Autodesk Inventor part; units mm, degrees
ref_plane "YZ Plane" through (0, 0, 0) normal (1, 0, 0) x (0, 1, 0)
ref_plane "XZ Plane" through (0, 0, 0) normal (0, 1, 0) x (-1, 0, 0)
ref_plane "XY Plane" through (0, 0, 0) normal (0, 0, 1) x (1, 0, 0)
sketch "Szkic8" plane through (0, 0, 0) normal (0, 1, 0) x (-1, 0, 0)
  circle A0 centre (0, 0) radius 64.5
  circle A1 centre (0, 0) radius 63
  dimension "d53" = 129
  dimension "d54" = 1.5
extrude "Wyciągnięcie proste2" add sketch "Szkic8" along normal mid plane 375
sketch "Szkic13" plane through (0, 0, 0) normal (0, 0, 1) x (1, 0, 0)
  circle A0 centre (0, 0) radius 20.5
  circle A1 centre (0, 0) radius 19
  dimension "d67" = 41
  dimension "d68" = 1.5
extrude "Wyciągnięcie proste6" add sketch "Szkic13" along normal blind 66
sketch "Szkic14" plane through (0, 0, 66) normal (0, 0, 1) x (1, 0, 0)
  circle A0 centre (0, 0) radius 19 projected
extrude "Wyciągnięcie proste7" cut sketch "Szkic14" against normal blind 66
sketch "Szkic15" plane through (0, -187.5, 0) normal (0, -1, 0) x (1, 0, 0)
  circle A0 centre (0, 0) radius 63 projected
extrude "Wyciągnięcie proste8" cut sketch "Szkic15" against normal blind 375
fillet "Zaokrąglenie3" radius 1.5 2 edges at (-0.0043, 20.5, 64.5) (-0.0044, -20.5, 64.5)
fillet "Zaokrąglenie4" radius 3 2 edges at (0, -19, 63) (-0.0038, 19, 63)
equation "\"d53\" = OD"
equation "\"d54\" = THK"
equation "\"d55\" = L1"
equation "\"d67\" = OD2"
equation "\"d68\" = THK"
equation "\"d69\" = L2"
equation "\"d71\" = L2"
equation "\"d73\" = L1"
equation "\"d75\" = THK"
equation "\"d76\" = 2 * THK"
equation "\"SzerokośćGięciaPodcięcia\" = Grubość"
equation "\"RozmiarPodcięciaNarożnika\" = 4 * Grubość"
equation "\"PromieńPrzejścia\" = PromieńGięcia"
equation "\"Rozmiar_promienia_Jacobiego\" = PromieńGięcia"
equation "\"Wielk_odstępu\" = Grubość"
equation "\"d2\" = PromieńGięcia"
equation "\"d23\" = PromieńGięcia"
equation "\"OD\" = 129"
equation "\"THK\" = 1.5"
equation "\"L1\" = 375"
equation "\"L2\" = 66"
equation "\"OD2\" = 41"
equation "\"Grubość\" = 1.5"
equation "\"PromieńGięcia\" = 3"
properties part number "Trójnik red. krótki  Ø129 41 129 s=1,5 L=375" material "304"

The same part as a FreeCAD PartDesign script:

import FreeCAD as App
import Part
import Sketcher


def edges_at(feature, points):
    """Names of the edges that pass closest to the given points."""
    edges = feature.Shape.Edges
    near = lambda p: min(range(len(edges)), key=lambda i: edges[i].distToShape(Part.Vertex(*p))[0])
    return sorted({f"Edge{near(p) + 1}" for p in points})

doc = App.newDocument("Part")
body = doc.addObject("PartDesign::Body", "Body")

sketch1 = body.newObject("Sketcher::SketchObject", "Sketch")
sketch1.AttachmentSupport = (doc.getObject("XZ_Plane"), [""])
sketch1.MapMode = "FlatFace"
sketch1.addGeometry([
    Part.Circle(App.Vector(0, 0, 0), App.Vector(0, 0, 1), 64),
    Part.Circle(App.Vector(0, 0, 0), App.Vector(0, 0, 1), 63),
], False)
sketch1.addConstraint([
    Sketcher.Constraint("Coincident", 0, 3, -1, 1),
    Sketcher.Constraint("Coincident", 1, 3, -1, 1),
    Sketcher.Constraint("Diameter", 0, 129.0),
    Sketcher.Constraint("Diameter", 1, 126.0),
])
pad1 = body.newObject("PartDesign::Pad", "Pad")
pad1.Profile = sketch1
pad1.Length = 375
pad1.Midplane = True

sketch2 = body.newObject("Sketcher::SketchObject", "Sketch001")
sketch2.AttachmentSupport = (doc.getObject("XY_Plane"), [""])
sketch2.MapMode = "FlatFace"
sketch2.addGeometry([
    Part.Circle(App.Vector(0, 0, 0), App.Vector(0, 0, 1), 20),
    Part.Circle(App.Vector(0, 0, 0), App.Vector(0, 0, 1), 19),
], False)
sketch2.addConstraint([
    Sketcher.Constraint("Coincident", 0, 3, -1, 1),
    Sketcher.Constraint("Coincident", 1, 3, -1, 1),
    Sketcher.Constraint("Diameter", 0, 41.0),
    Sketcher.Constraint("Diameter", 1, 38.0),
])
pad2 = body.newObject("PartDesign::Pad", "Pad001")
pad2.Profile = sketch2
pad2.Length = 66

sketch3 = body.newObject("Sketcher::SketchObject", "Sketch002")
sketch3.AttachmentSupport = (doc.getObject("XY_Plane"), [""])
sketch3.MapMode = "FlatFace"
sketch3.AttachmentOffset = App.Placement(App.Vector(0, 0, 66), App.Rotation())
sketch3.addGeometry(Part.Circle(App.Vector(0, 0, 0), App.Vector(0, 0, 1), 19), False)
sketch3.addConstraint([
    Sketcher.Constraint("Coincident", 0, 3, -1, 1),
    Sketcher.Constraint("Diameter", 0, 38.0),
])
pocket1 = body.newObject("PartDesign::Pocket", "Pocket")
pocket1.Profile = sketch3
pocket1.Length = 66

sketch4 = body.newObject("Sketcher::SketchObject", "Sketch003")
sketch4.AttachmentSupport = (doc.getObject("XZ_Plane"), [""])
sketch4.MapMode = "FlatFace"
sketch4.AttachmentOffset = App.Placement(App.Vector(0, 0, 187.5), App.Rotation())
sketch4.addGeometry(Part.Circle(App.Vector(0, 0, 0), App.Vector(0, 0, 1), 63), False)
sketch4.addConstraint([
    Sketcher.Constraint("Coincident", 0, 3, -1, 1),
    Sketcher.Constraint("Diameter", 0, 126.0),
])
pocket2 = body.newObject("PartDesign::Pocket", "Pocket001")
pocket2.Profile = sketch4
pocket2.Length = 375
doc.recompute()

fillet = body.newObject("PartDesign::Fillet", "Fillet")
fillet.Base = (pocket2, edges_at(pocket2, [(-0.004, 20.5, 64.5), (-0.004, -20.5, 64.5)]))
fillet.Radius = 1.5
doc.recompute()

fillet2 = body.newObject("PartDesign::Fillet", "Fillet001")
fillet2.Base = (fillet, edges_at(fillet, [(0, -19, 63), (-0.004, 19, 63)]))
fillet2.Radius = 3

doc.recompute()
